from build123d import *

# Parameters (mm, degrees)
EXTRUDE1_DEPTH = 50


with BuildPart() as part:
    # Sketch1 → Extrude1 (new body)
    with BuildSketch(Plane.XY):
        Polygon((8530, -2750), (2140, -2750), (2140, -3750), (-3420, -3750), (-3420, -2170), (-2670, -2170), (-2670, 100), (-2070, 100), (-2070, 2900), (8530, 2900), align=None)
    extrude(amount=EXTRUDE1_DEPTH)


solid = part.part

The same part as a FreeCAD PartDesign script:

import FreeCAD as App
import Part
import Sketcher

doc = App.newDocument("Part")
body = doc.addObject("PartDesign::Body", "Body")

sketch1 = body.newObject("Sketcher::SketchObject", "Sketch")
sketch1.AttachmentSupport = (doc.getObject("XY_Plane"), [""])
sketch1.MapMode = "FlatFace"
sketch1.addGeometry([
    Part.LineSegment(App.Vector(2140, -2750, 0), App.Vector(8530, -2750, 0)),
    Part.LineSegment(App.Vector(8530, -2750, 0), App.Vector(8530, 2900, 0)),
    Part.LineSegment(App.Vector(8530, 2900, 0), App.Vector(-2070, 2900, 0)),
    Part.LineSegment(App.Vector(-2070, 2900, 0), App.Vector(-2070, 100, 0)),
    Part.LineSegment(App.Vector(-2070, 100, 0), App.Vector(-2670, 100, 0)),
    Part.LineSegment(App.Vector(-2670, 100, 0), App.Vector(-2670, -2170, 0)),
    Part.LineSegment(App.Vector(-2670, -2170, 0), App.Vector(-3420, -2170, 0)),
    Part.LineSegment(App.Vector(-3420, -2170, 0), App.Vector(-3420, -3750, 0)),
    Part.LineSegment(App.Vector(-3420, -3750, 0), App.Vector(2140, -3750, 0)),
    Part.LineSegment(App.Vector(2140, -3750, 0), App.Vector(2140, -2750, 0)),
], False)
sketch1.addConstraint([
    Sketcher.Constraint("Coincident", 0, 2, 1, 1),
    Sketcher.Constraint("Coincident", 1, 2, 2, 1),
    Sketcher.Constraint("Coincident", 2, 2, 3, 1),
    Sketcher.Constraint("Coincident", 3, 2, 4, 1),
    Sketcher.Constraint("Coincident", 4, 2, 5, 1),
    Sketcher.Constraint("Coincident", 5, 2, 6, 1),
    Sketcher.Constraint("Coincident", 6, 2, 7, 1),
    Sketcher.Constraint("Coincident", 7, 2, 8, 1),
    Sketcher.Constraint("Coincident", 8, 2, 9, 1),
    Sketcher.Constraint("Coincident", 9, 2, 0, 1),
    Sketcher.Constraint("Horizontal", 0),
    Sketcher.Constraint("Vertical", 1),
    Sketcher.Constraint("Horizontal", 2),
    Sketcher.Constraint("Vertical", 3),
    Sketcher.Constraint("Horizontal", 4),
    Sketcher.Constraint("Vertical", 5),
    Sketcher.Constraint("Horizontal", 6),
    Sketcher.Constraint("Vertical", 7),
    Sketcher.Constraint("Horizontal", 8),
    Sketcher.Constraint("Vertical", 9),
    Sketcher.Constraint("DistanceX", 0, 1, 0, 2, 6390.0),
    Sketcher.Constraint("DistanceX", 2, 2, 2, 1, 10600.0),
    Sketcher.Constraint("DistanceX", 4, 2, 4, 1, 600.0),
    Sketcher.Constraint("DistanceX", 6, 2, 6, 1, 750.0),
    Sketcher.Constraint("DistanceY", 1, 1, 1, 2, 5650.0),
    Sketcher.Constraint("DistanceY", 3, 2, 3, 1, 2800.0),
    Sketcher.Constraint("DistanceY", 5, 2, 5, 1, 2270.0),
    Sketcher.Constraint("DistanceY", 7, 2, 7, 1, 1580.0),
    Sketcher.Constraint("DistanceX", -1, 1, 0, 2, 8530.0),
    Sketcher.Constraint("DistanceY", 0, 2, -1, 1, 2750.0),
])
pad1 = body.newObject("PartDesign::Pad", "Pad")
pad1.Profile = sketch1
pad1.Length = 50

doc.recompute()
